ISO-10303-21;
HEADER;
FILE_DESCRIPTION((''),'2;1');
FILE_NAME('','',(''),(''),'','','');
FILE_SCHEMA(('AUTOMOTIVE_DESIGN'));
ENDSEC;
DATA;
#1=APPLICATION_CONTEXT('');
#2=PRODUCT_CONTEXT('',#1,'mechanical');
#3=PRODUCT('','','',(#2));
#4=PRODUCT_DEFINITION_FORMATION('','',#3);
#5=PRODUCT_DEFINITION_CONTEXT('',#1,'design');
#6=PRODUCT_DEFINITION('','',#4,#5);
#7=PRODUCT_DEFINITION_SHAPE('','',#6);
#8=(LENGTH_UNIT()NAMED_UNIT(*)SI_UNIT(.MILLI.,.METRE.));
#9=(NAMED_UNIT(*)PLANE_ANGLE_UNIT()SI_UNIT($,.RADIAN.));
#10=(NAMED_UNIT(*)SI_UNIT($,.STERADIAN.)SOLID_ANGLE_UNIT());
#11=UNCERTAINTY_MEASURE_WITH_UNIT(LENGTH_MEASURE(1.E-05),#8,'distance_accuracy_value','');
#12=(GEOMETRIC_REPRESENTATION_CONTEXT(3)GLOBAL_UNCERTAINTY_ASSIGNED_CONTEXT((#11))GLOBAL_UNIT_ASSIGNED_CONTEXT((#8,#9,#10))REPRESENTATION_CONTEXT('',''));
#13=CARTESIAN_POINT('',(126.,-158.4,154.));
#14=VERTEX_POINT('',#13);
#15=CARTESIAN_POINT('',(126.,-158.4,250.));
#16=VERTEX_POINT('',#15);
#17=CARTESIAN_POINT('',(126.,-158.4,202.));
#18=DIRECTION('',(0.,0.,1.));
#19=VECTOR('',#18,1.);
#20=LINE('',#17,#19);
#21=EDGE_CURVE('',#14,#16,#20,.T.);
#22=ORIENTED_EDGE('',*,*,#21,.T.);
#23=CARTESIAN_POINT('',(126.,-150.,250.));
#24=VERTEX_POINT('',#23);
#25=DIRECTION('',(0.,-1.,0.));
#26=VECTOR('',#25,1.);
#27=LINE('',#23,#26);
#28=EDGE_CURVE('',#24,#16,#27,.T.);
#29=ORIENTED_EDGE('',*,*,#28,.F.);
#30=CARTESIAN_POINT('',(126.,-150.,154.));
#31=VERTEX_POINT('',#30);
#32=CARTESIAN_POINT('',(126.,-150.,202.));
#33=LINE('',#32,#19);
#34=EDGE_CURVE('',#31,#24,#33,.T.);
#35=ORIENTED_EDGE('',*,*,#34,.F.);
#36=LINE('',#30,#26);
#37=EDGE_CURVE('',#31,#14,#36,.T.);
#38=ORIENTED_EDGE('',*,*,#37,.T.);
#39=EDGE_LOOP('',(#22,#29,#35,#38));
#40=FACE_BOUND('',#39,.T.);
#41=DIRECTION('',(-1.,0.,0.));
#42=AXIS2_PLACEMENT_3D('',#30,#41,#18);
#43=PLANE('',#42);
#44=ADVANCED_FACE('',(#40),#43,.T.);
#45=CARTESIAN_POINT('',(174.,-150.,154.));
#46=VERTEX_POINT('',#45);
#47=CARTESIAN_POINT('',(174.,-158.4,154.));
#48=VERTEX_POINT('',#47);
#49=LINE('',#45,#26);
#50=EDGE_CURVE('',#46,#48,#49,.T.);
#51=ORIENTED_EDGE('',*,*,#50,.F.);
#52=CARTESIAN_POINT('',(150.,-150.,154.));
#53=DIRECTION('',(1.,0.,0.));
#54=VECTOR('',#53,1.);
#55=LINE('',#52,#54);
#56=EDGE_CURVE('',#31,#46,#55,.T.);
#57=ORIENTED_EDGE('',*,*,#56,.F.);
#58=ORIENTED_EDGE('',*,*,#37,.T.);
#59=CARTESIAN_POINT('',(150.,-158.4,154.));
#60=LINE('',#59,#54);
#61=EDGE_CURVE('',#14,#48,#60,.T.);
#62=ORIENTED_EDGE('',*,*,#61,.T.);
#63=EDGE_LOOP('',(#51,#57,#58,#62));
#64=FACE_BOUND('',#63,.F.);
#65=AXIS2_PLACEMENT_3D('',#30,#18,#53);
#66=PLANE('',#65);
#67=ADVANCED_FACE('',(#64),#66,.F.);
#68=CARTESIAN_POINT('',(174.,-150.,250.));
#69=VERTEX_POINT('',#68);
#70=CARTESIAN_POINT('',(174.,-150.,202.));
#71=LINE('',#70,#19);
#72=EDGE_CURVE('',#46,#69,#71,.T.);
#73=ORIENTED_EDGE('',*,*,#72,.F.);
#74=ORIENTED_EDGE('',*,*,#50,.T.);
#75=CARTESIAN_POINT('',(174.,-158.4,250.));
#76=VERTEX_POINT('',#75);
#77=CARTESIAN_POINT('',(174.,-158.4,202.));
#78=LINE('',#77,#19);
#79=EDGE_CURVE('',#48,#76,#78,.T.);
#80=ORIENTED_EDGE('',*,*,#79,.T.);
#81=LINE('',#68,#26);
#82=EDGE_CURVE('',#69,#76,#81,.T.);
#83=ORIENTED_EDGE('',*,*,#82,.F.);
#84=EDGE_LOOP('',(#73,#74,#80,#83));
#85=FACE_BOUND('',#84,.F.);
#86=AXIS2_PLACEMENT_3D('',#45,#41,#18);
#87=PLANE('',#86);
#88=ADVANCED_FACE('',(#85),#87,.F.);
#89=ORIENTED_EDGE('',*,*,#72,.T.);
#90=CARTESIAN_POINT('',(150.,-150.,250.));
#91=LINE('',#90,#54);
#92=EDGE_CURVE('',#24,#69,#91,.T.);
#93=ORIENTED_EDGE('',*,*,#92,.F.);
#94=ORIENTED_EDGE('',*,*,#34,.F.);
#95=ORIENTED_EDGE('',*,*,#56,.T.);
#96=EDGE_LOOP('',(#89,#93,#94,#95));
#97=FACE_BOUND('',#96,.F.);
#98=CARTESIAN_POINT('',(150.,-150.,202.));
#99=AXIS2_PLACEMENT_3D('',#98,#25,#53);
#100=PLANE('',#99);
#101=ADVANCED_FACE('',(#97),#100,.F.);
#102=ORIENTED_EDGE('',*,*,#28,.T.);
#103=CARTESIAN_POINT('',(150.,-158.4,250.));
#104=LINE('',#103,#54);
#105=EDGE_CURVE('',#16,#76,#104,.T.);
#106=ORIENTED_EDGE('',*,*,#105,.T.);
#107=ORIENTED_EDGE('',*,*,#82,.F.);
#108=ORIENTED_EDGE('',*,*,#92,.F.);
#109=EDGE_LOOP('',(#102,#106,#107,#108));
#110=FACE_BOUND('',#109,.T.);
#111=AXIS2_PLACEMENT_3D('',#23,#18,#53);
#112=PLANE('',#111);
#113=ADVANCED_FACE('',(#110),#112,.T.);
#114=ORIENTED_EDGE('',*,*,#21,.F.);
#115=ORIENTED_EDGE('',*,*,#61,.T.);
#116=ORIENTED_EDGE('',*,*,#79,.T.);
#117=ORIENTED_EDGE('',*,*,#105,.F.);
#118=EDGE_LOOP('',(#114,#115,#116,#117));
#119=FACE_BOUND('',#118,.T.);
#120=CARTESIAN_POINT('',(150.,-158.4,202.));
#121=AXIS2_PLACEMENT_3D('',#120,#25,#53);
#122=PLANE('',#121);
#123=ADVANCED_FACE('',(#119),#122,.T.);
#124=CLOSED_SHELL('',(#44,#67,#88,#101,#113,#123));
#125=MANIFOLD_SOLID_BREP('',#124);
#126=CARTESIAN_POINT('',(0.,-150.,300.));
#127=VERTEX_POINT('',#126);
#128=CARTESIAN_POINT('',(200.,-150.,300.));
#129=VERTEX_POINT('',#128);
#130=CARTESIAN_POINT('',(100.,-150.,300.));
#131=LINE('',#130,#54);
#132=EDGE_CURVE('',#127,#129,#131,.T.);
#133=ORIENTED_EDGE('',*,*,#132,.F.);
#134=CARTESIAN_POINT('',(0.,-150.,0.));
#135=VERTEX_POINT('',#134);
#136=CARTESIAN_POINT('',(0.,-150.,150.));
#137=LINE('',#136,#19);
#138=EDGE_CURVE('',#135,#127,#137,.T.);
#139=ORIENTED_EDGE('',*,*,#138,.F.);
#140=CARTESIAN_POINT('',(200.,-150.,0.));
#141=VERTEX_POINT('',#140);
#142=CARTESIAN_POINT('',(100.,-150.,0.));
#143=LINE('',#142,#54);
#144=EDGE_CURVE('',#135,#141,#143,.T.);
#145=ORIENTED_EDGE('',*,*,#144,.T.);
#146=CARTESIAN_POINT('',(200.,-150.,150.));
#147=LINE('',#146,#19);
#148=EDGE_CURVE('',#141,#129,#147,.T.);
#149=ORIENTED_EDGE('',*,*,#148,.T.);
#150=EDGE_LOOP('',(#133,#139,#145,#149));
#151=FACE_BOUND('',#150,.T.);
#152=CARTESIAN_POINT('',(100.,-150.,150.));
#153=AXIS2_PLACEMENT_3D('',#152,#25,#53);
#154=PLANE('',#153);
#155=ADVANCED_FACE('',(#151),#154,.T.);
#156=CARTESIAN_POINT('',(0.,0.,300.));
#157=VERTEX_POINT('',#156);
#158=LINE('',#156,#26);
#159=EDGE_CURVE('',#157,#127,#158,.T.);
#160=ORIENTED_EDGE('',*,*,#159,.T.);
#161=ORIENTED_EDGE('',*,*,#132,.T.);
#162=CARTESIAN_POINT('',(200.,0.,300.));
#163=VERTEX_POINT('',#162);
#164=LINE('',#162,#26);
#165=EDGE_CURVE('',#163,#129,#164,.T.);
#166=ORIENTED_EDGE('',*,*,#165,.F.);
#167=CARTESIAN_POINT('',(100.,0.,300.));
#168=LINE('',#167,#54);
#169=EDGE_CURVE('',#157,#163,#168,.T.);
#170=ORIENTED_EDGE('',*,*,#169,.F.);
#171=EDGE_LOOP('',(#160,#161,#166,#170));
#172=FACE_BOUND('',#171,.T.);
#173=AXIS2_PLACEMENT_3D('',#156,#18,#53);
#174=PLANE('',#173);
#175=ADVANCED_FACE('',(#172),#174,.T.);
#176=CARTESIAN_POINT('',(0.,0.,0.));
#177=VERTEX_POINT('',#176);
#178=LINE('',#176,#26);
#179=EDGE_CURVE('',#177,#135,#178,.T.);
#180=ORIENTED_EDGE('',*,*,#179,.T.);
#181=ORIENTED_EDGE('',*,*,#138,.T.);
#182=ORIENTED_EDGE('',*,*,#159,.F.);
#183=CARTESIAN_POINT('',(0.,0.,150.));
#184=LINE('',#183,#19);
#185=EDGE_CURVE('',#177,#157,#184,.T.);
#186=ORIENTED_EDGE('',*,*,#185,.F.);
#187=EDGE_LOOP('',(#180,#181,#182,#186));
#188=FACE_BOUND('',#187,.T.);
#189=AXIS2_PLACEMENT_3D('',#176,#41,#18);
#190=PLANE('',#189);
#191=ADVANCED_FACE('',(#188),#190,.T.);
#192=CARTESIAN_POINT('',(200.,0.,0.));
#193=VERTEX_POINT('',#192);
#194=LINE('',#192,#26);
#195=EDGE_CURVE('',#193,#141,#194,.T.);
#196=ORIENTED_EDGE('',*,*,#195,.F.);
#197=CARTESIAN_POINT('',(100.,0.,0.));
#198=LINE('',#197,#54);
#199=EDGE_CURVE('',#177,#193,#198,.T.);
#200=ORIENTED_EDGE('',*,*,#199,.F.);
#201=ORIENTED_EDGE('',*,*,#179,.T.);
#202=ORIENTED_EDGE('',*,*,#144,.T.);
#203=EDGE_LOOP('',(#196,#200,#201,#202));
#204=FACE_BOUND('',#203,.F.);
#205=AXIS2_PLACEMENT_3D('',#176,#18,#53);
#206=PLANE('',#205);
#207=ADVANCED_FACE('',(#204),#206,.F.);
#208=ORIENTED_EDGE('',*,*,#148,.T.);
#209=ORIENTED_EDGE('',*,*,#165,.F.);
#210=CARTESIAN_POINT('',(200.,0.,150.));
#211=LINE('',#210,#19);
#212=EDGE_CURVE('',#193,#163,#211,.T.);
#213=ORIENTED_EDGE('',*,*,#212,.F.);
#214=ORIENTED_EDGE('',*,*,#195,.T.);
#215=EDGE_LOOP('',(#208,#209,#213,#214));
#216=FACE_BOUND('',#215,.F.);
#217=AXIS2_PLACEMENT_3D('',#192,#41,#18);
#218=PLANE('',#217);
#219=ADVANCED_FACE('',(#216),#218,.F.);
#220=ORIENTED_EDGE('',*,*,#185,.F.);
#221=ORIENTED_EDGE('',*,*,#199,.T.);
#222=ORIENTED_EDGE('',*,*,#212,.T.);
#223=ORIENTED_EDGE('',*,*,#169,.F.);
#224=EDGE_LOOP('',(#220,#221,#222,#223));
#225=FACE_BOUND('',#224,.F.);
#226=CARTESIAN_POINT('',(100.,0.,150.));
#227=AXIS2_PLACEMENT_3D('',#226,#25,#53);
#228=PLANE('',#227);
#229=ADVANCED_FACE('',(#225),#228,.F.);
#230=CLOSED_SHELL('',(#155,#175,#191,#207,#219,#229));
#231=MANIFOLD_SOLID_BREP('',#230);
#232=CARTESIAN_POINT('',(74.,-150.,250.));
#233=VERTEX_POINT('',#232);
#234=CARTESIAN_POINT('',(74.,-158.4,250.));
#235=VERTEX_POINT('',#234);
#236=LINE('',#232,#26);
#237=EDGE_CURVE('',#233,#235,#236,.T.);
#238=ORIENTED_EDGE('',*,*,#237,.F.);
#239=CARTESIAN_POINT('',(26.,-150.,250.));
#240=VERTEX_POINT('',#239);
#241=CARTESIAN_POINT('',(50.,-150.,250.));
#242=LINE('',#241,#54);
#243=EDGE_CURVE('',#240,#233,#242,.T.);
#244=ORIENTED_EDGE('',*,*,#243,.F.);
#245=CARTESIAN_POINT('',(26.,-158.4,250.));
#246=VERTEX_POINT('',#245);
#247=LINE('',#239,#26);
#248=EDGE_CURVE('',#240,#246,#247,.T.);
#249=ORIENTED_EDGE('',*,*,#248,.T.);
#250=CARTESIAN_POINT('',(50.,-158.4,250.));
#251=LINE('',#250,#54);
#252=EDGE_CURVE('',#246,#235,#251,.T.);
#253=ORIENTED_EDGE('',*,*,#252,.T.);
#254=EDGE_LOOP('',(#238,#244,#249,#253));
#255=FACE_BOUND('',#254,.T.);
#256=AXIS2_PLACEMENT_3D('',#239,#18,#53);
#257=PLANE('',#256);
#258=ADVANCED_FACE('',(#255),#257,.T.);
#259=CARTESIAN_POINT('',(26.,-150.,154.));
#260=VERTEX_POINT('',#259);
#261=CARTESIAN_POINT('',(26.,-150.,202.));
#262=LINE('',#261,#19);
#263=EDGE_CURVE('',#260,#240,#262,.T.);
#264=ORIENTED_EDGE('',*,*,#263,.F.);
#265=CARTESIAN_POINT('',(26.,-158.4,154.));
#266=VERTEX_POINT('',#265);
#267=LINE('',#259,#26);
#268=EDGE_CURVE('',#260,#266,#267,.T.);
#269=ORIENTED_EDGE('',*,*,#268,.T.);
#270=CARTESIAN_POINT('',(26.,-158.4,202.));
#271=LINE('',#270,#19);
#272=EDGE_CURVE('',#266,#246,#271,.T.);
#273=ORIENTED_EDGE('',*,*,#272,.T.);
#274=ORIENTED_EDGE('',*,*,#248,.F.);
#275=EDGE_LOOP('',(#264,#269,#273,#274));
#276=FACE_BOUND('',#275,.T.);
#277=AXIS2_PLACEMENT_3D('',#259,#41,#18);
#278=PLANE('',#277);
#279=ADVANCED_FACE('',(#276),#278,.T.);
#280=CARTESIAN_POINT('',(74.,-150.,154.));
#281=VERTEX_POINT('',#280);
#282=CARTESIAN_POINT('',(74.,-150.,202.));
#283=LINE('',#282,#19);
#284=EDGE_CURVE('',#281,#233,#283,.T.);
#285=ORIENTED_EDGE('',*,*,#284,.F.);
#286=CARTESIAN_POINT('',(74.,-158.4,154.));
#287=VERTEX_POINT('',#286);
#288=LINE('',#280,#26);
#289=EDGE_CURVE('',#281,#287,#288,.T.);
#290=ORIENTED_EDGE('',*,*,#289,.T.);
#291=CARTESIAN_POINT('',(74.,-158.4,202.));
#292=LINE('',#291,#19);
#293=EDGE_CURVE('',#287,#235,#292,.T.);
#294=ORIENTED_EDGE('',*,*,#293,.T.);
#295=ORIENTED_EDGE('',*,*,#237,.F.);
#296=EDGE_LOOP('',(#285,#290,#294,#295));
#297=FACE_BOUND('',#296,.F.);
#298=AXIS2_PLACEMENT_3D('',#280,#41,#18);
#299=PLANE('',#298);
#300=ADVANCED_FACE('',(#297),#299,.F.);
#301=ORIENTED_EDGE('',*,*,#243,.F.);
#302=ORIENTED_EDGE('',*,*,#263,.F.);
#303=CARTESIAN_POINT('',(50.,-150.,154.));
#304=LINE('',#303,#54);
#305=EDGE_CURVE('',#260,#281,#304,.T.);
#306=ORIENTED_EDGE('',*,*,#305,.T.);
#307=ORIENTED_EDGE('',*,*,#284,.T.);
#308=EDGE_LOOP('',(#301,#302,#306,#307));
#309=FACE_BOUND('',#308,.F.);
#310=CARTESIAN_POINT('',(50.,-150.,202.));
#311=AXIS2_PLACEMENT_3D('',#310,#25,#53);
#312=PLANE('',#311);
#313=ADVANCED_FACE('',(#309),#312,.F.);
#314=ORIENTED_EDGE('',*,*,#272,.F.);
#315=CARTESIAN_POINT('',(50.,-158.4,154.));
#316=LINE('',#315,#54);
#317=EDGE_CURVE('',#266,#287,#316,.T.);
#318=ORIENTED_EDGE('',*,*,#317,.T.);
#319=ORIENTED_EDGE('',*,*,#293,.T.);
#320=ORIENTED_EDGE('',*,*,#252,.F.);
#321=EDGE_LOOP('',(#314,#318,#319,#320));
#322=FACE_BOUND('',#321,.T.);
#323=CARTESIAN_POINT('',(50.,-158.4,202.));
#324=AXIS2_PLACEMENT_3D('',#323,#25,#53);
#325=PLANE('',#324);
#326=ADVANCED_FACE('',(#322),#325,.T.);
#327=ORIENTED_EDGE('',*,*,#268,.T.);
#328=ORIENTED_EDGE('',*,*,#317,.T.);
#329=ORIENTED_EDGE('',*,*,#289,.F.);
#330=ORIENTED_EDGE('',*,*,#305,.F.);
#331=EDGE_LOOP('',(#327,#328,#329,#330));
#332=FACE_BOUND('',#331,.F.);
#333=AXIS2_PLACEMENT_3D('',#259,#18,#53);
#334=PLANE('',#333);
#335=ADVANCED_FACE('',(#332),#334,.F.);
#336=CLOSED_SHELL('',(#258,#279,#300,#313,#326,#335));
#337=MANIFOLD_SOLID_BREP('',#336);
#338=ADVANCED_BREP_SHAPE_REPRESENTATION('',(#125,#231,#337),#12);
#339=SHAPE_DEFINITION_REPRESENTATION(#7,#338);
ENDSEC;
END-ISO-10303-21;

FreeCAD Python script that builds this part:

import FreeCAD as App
import Part
import Sketcher
from FreeCAD import Vector


def add_polygon(sketch, points):
    """Adds a closed chain of lines whose ends are joined by coincident constraints."""
    first, n = sketch.GeometryCount, len(points)
    for a, b in zip(points, points[1:] + points[:1]):
        sketch.addGeometry(Part.LineSegment(App.Vector(*a, 0), App.Vector(*b, 0)), False)
    for i in range(n):
        sketch.addConstraint(Sketcher.Constraint("Coincident", first + i, 2, first + (i + 1) % n, 1))

doc = App.newDocument("Part")
body = doc.addObject("PartDesign::Body", "Body")

sketch1 = body.newObject("Sketcher::SketchObject", "Sketch")
sketch1.AttachmentSupport = (doc.getObject("XZ_Plane"), [""])
sketch1.MapMode = "FlatFace"
add_polygon(sketch1, [(0, 300), (0, 0), (200, 0), (200, 300)])
sketch1.addConstraint(Sketcher.Constraint("Vertical", 0))
sketch1.addConstraint(Sketcher.Constraint("Horizontal", 1))
sketch1.addConstraint(Sketcher.Constraint("Vertical", 2))
sketch1.addConstraint(Sketcher.Constraint("Horizontal", 3))
sketch1.addConstraint(Sketcher.Constraint("Coincident", 0, 2, -1, 1))
sketch1.addConstraint(Sketcher.Constraint("DistanceX", 1, 1, 1, 2, 200.0))
sketch1.addConstraint(Sketcher.Constraint("DistanceY", 0, 2, 0, 1, 300.0))
pad1 = body.newObject("PartDesign::Pad", "Pad")
pad1.Profile = sketch1
pad1.Length = 150
body2 = doc.addObject("PartDesign::Body", "Body001")
body2.AllowCompound = True

sketch2 = body2.newObject("Sketcher::SketchObject", "Sketch001")
sketch2.AttachmentSupport = (doc.getObject("XZ_Plane001"), [""])
sketch2.MapMode = "FlatFace"
sketch2.AttachmentOffset = App.Placement(Vector(0, 0, 150), App.Rotation())
add_polygon(sketch2, [(26, 250), (26, 154), (74, 154), (74, 250)])
add_polygon(sketch2, [(126, 250), (126, 154), (174, 154), (174, 250)])
sketch2.addConstraint(Sketcher.Constraint("Vertical", 0))
sketch2.addConstraint(Sketcher.Constraint("Horizontal", 1))
sketch2.addConstraint(Sketcher.Constraint("Vertical", 2))
sketch2.addConstraint(Sketcher.Constraint("Horizontal", 3))
sketch2.addConstraint(Sketcher.Constraint("Vertical", 4))
sketch2.addConstraint(Sketcher.Constraint("Horizontal", 5))
sketch2.addConstraint(Sketcher.Constraint("Vertical", 6))
sketch2.addConstraint(Sketcher.Constraint("Horizontal", 7))
sketch2.addConstraint(Sketcher.Constraint("Horizontal", 1, 2, 4, 2))
sketch2.addConstraint(Sketcher.Constraint("Horizontal", 3, 2, 6, 2))
sketch2.addConstraint(Sketcher.Constraint("Equal", 3, 5))
sketch2.addConstraint(Sketcher.Constraint("DistanceX", 1, 1, 1, 2, 48.0))
sketch2.addConstraint(Sketcher.Constraint("DistanceY", 0, 2, 0, 1, 96.0))
sketch2.addConstraint(Sketcher.Constraint("DistanceX", -1, 1, 0, 2, 26.0))
sketch2.addConstraint(Sketcher.Constraint("DistanceY", -1, 1, 0, 2, 154.0))
sketch2.addConstraint(Sketcher.Constraint("DistanceX", -1, 1, 4, 2, 126.0))
pad2 = body2.newObject("PartDesign::Pad", "Pad001")
pad2.Profile = sketch2
pad2.Length = 8.4

doc.recompute()
